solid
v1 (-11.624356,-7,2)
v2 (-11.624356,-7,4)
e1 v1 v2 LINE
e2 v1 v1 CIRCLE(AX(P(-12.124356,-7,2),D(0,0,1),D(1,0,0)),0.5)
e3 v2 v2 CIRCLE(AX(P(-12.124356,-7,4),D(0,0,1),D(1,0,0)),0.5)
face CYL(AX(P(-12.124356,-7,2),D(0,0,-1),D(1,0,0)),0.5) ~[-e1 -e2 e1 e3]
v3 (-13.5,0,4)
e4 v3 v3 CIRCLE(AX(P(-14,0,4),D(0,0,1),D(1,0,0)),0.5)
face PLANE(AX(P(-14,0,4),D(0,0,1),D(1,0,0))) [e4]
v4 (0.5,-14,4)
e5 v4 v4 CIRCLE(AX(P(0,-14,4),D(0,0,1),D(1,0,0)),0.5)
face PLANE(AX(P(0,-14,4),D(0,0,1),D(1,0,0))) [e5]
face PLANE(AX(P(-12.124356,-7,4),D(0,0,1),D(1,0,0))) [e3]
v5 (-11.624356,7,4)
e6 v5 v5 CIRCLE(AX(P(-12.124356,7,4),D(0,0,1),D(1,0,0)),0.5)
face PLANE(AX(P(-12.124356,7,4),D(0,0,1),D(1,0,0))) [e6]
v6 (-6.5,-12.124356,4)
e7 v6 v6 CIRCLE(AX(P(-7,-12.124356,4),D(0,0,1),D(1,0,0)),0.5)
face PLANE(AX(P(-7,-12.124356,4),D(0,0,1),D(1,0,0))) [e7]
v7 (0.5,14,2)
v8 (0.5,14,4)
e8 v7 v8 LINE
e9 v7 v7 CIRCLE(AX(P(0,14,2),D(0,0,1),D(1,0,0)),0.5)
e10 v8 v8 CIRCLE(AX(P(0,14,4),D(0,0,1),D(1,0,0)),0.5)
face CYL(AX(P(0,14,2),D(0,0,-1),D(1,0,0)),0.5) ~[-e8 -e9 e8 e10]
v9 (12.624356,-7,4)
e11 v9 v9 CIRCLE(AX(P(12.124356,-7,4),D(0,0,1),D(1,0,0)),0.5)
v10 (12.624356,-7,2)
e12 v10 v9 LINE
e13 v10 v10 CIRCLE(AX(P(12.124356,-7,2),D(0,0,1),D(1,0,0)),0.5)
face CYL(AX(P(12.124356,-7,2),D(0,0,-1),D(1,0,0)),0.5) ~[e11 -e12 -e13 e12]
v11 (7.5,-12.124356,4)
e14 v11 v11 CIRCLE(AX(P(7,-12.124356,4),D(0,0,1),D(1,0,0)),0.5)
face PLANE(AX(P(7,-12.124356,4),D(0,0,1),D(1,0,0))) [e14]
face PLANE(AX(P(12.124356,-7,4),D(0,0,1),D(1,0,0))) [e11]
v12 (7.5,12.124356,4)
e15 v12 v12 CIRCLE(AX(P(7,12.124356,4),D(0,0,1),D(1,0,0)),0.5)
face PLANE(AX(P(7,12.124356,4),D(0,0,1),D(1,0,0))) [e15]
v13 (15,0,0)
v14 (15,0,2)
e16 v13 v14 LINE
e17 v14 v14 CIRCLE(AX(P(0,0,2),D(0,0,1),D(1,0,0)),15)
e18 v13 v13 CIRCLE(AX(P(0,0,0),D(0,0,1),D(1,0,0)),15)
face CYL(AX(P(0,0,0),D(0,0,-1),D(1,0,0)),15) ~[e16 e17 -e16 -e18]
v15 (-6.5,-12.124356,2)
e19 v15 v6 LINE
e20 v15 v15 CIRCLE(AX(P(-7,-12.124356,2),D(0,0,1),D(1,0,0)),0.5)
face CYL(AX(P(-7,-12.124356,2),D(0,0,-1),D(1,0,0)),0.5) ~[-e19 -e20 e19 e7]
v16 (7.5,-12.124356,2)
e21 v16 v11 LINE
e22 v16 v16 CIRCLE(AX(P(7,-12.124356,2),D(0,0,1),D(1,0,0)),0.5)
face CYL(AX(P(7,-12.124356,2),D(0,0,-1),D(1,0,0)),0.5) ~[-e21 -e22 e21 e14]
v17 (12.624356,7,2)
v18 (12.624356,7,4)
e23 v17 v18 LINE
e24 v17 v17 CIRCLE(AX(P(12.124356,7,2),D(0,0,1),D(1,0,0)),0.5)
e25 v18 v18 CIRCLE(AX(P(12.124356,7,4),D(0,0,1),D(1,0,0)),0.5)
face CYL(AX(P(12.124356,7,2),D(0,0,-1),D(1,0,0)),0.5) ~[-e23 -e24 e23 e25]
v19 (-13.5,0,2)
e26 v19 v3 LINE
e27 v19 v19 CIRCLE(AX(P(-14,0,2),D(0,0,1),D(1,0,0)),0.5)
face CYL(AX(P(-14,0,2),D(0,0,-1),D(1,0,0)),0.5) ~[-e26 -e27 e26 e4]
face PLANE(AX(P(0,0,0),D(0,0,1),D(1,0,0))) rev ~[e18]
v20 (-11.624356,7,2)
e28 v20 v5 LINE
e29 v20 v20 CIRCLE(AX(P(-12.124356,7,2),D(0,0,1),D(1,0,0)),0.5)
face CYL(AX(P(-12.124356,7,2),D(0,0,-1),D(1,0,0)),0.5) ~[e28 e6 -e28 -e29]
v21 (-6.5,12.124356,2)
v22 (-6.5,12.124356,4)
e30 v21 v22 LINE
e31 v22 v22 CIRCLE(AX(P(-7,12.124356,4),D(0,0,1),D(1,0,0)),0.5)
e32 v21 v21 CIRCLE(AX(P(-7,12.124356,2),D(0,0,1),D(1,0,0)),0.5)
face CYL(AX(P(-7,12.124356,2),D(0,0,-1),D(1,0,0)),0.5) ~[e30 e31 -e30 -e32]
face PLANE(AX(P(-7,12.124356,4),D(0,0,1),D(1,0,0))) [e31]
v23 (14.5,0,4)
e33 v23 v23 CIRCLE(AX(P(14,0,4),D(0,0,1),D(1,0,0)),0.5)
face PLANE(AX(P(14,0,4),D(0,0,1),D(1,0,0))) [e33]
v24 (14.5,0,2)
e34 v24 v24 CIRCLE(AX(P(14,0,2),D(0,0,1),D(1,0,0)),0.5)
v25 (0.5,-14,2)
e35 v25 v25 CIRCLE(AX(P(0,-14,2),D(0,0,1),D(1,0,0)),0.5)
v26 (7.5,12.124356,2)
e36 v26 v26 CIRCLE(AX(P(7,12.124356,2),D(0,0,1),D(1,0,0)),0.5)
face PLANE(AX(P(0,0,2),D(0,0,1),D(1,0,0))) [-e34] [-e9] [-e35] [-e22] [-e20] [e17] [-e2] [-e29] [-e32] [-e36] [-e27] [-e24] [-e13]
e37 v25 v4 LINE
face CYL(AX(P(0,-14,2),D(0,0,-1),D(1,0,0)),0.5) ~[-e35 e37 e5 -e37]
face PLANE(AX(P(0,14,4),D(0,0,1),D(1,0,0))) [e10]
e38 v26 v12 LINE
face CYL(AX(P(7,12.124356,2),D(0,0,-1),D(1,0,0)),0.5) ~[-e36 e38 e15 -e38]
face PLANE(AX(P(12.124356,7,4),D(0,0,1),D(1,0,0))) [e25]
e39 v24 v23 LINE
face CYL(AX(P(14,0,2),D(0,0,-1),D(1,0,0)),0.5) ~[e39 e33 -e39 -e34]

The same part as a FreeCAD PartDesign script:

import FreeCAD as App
import Part
import Sketcher

doc = App.newDocument("Part")
body = doc.addObject("PartDesign::Body", "Body")

# Sketch on XY plane
sketch1 = body.newObject("Sketcher::SketchObject", "Sketch")
sketch1.AttachmentSupport = (doc.getObject("XY_Plane"), [""])
sketch1.MapMode = "FlatFace"
sketch1.addGeometry(Part.Circle(App.Vector(0, 0, 0), App.Vector(0, 0, 1), 15), False)
sketch1.addConstraint([
    Sketcher.Constraint("Coincident", 0, 3, -1, 1),
    Sketcher.Constraint("Diameter", 0, 30.0),
])
pad1 = body.newObject("PartDesign::Pad", "Pad")
pad1.Profile = sketch1
pad1.Length = 2

# Sketch on XY plane
sketch2 = body.newObject("Sketcher::SketchObject", "Sketch001")
sketch2.AttachmentSupport = (doc.getObject("XY_Plane"), [""])
sketch2.MapMode = "FlatFace"
sketch2.AttachmentOffset = App.Placement(App.Vector(0, 0, 2), App.Rotation())
sketch2.addGeometry([
    Part.Circle(App.Vector(0, 14, 0), App.Vector(0, 0, 1), 0.5),  # 0
    Part.Circle(App.Vector(7, 12.1, 0), App.Vector(0, 0, 1), 0.5),  # 1
    Part.Circle(App.Vector(12.1, 7, 0), App.Vector(0, 0, 1), 0.5),  # 2
    Part.Circle(App.Vector(14, 0, 0), App.Vector(0, 0, 1), 0.5),  # 3
    Part.Circle(App.Vector(12.1, -7, 0), App.Vector(0, 0, 1), 0.5),  # 4
    Part.Circle(App.Vector(7, -12.1, 0), App.Vector(0, 0, 1), 0.5),  # 5
    Part.Circle(App.Vector(0, -14, 0), App.Vector(0, 0, 1), 0.5),  # 6
    Part.Circle(App.Vector(-7, -12.1, 0), App.Vector(0, 0, 1), 0.5),  # 7
    Part.Circle(App.Vector(-12.1, -7, 0), App.Vector(0, 0, 1), 0.5),  # 8
    Part.Circle(App.Vector(-14, 0, 0), App.Vector(0, 0, 1), 0.5),  # 9
    Part.Circle(App.Vector(-12.1, 7, 0), App.Vector(0, 0, 1), 0.5),  # 10
    Part.Circle(App.Vector(-7, 12.1, 0), App.Vector(0, 0, 1), 0.5),  # 11
], False)
sketch2.addConstraint([
    Sketcher.Constraint("Equal", 0, 1),
    Sketcher.Constraint("Equal", 1, 2),
    Sketcher.Constraint("Equal", 2, 3),
    Sketcher.Constraint("Equal", 3, 4),
    Sketcher.Constraint("Equal", 4, 5),
    Sketcher.Constraint("Equal", 5, 6),
    Sketcher.Constraint("Equal", 6, 7),
    Sketcher.Constraint("Equal", 7, 8),
    Sketcher.Constraint("Equal", 8, 9),
    Sketcher.Constraint("Equal", 9, 10),
    Sketcher.Constraint("Equal", 10, 11),
    Sketcher.Constraint("Symmetric", 0, 3, 6, 3, -1, 1),
    Sketcher.Constraint("Symmetric", 1, 3, 7, 3, -1, 1),
    Sketcher.Constraint("Symmetric", 2, 3, 8, 3, -1, 1),
    Sketcher.Constraint("Symmetric", 3, 3, 9, 3, -1, 1),
    Sketcher.Constraint("Symmetric", 4, 3, 10, 3, -1, 1),
    Sketcher.Constraint("Symmetric", 5, 3, 11, 3, -1, 1),
    Sketcher.Constraint("Symmetric", 5, 3, 7, 3, -2),
    Sketcher.Constraint("Symmetric", 4, 3, 8, 3, -2),
    Sketcher.Constraint("PointOnObject", 0, 3, -2),
    Sketcher.Constraint("PointOnObject", 3, 3, -1),
    Sketcher.Constraint("Diameter", 0, 1.0),
    Sketcher.Constraint("DistanceY", -1, 1, 0, 3, 14.0),
    Sketcher.Constraint("DistanceX", -1, 1, 1, 3, 7.0),
    Sketcher.Constraint("DistanceY", -1, 1, 2, 3, 7.0),
    Sketcher.Constraint("DistanceX", -1, 1, 3, 3, 14.0),
    Sketcher.Constraint("DistanceY", -1, 1, 1, 3, 12.124356),
    Sketcher.Constraint("DistanceX", -1, 1, 2, 3, 12.124356),
])
pad2 = body.newObject("PartDesign::Pad", "Pad001")
pad2.Profile = sketch2
pad2.Length = 2

doc.recompute()
